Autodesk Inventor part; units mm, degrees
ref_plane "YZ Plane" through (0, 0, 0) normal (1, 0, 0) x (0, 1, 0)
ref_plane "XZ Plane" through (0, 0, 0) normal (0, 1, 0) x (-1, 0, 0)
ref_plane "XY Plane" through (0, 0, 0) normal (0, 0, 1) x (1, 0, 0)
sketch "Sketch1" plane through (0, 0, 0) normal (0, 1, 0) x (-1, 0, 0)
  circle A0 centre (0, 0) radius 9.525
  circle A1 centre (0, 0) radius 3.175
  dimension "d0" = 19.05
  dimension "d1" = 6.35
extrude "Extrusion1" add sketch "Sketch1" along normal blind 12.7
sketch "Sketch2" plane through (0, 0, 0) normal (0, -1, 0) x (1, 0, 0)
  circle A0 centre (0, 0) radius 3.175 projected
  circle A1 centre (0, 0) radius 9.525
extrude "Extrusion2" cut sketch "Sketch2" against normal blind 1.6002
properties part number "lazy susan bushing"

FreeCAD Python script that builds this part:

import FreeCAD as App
import Part
import Sketcher
from FreeCAD import Vector
Q = App.Units.Quantity

doc = App.newDocument("Part")
body = doc.addObject("PartDesign::Body", "Body")

# Sketch on XZ plane
sketch1 = doc.addObject("Sketcher::SketchObject", "Sketch")
body.addObject(sketch1)
sketch1.AttachmentSupport = (doc.XZ_Plane, [""])
sketch1.MapMode = "FlatFace"
sketch1.addGeometry([
    Part.Circle(Vector(0, 0, 0), Vector(0, 0, 1), 9.5),
    Part.Circle(Vector(0, 0, 0), Vector(0, 0, 1), 3.2),
], False)
sketch1.addConstraint([
    Sketcher.Constraint("Coincident", 0, 3, -1, 1),
    Sketcher.Constraint("Coincident", 1, 3, -1, 1),
    Sketcher.Constraint("Diameter", 0, Q("0.75 in")),
    Sketcher.Constraint("Diameter", 1, Q("0.25 in")),
])
pad1 = doc.addObject("PartDesign::Pad", "Pad")
body.addObject(pad1)
pad1.Profile = sketch1
pad1.Length = Q("0.5 in")
pad1.Reversed = True

# Sketch on XZ plane
sketch2 = doc.addObject("Sketcher::SketchObject", "Sketch001")
body.addObject(sketch2)
sketch2.AttachmentSupport = (doc.XZ_Plane, [""])
sketch2.MapMode = "FlatFace"
sketch2.addGeometry([
    Part.Circle(Vector(0, 0, 0), Vector(0, 0, 1), 9.5),
    Part.Circle(Vector(0, 0, 0), Vector(0, 0, 1), 3.2),
], False)
sketch2.addConstraint([
    Sketcher.Constraint("Coincident", 0, 3, -1, 1),
    Sketcher.Constraint("Coincident", 1, 3, -1, 1),
    Sketcher.Constraint("Diameter", 0, Q("0.75 in")),
    Sketcher.Constraint("Diameter", 1, Q("0.25 in")),
])
pocket1 = doc.addObject("PartDesign::Pocket", "Pocket")
body.addObject(pocket1)
pocket1.Profile = sketch2
pocket1.Length = Q("0.063 in")

doc.recompute()
